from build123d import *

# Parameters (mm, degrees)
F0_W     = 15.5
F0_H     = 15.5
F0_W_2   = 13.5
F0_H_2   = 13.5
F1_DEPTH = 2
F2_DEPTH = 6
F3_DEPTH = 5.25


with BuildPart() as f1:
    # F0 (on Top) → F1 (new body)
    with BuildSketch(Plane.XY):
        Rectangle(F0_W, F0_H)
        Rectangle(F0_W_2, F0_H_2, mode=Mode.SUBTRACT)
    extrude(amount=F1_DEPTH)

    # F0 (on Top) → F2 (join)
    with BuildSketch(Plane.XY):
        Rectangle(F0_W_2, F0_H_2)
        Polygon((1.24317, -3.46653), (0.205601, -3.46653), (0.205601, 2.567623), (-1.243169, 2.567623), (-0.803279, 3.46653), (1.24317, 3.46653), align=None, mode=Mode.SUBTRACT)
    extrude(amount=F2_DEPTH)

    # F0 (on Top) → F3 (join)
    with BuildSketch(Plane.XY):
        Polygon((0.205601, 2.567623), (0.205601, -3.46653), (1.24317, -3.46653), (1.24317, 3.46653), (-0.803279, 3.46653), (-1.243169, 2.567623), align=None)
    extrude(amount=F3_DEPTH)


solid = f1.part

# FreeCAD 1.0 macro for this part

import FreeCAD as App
import Part
import Sketcher
from FreeCAD import Vector


def add_polygon(sketch, points):
    """Adds a closed chain of lines whose ends are joined by coincident constraints."""
    first, n = sketch.GeometryCount, len(points)
    for a, b in zip(points, points[1:] + points[:1]):
        sketch.addGeometry(Part.LineSegment(App.Vector(*a, 0), App.Vector(*b, 0)), False)
    for i in range(n):
        sketch.addConstraint(Sketcher.Constraint("Coincident", first + i, 2, first + (i + 1) % n, 1))

doc = App.newDocument("Part")
params = doc.addObject("Spreadsheet::Sheet", "Params")
for row, (alias, value) in enumerate([
    ("sketch1_width", "15.5 mm"),
    ("sketch1_width2", "13.5 mm"),
    ("pad1_length", "2 mm"),
    ("sketch2_width", "13.5 mm"),
    ("pad2_length", "6 mm"),
    ("pad3_length", "5.25 mm"),
], start=1):
    params.set(f"A{row}", alias)
    params.set(f"B{row}", "=" + value)
    params.setAlias(f"B{row}", alias)

body = doc.addObject("PartDesign::Body", "Body")

# Sketch on XY plane
sketch1 = doc.addObject("Sketcher::SketchObject", "Sketch")
body.addObject(sketch1)
sketch1.AttachmentSupport = (doc.XY_Plane, [""])
sketch1.MapMode = "FlatFace"
add_polygon(sketch1, [(-8, 8), (-8, -8), (8, -8), (8, 8)])  # lines 0-3
add_polygon(sketch1, [(7, -7), (-7, -7), (-7, 7), (7, 7)])  # lines 4-7
sketch1.addConstraint([
    Sketcher.Constraint("Vertical", 0),
    Sketcher.Constraint("Horizontal", 1),
    Sketcher.Constraint("Vertical", 2),
    Sketcher.Constraint("Horizontal", 3),
    Sketcher.Constraint("Horizontal", 4),
    Sketcher.Constraint("Vertical", 5),
    Sketcher.Constraint("Horizontal", 6),
    Sketcher.Constraint("Vertical", 7),
    Sketcher.Constraint("Symmetric", 0, 2, 2, 2, -1, 1),
    Sketcher.Constraint("Symmetric", 4, 2, 6, 2, -1, 1),
    Sketcher.Constraint("Equal", 3, 0),
    Sketcher.Constraint("Equal", 6, 5),
    Sketcher.Constraint("DistanceX", 1, 1, 1, 2, 15.5),
    Sketcher.Constraint("DistanceX", 4, 2, 4, 1, 13.5),
])
sketch1.setExpression("Constraints[20]", "Params.sketch1_width")
sketch1.setExpression("Constraints[21]", "Params.sketch1_width2")
pad1 = doc.addObject("PartDesign::Pad", "Pad")
body.addObject(pad1)
pad1.Profile = sketch1
pad1.setExpression("Length", "Params.pad1_length")

# Sketch on XY plane
sketch2 = doc.addObject("Sketcher::SketchObject", "Sketch001")
body.addObject(sketch2)
sketch2.AttachmentSupport = (doc.XY_Plane, [""])
sketch2.MapMode = "FlatFace"
add_polygon(sketch2, [(-6.8, 6.8), (-6.8, -6.8), (6.8, -6.8), (6.8, 6.8)])  # lines 0-3
add_polygon(sketch2, [(1.2, 3.5), (1.2, -3.5), (0.2, -3.5), (0.2, 2.6), (-1.2, 2.6), (-0.8, 3.5)])  # lines 4-9
sketch2.addConstraint([
    Sketcher.Constraint("Vertical", 0),
    Sketcher.Constraint("Horizontal", 1),
    Sketcher.Constraint("Vertical", 2),
    Sketcher.Constraint("Horizontal", 3),
    Sketcher.Constraint("Vertical", 4),
    Sketcher.Constraint("Horizontal", 5),
    Sketcher.Constraint("Vertical", 6),
    Sketcher.Constraint("Horizontal", 7),
    Sketcher.Constraint("Horizontal", 9),
    Sketcher.Constraint("Symmetric", 0, 2, 2, 2, -1, 1),
    Sketcher.Constraint("Equal", 3, 0),
    Sketcher.Constraint("DistanceX", 1, 1, 1, 2, 13.5),
    Sketcher.Constraint("DistanceX", 5, 2, 5, 1, 1.037569),
    Sketcher.Constraint("DistanceX", 7, 2, 7, 1, 1.44877),
    Sketcher.Constraint("DistanceX", 9, 1, 9, 2, 2.046449),
    Sketcher.Constraint("DistanceY", 4, 2, 4, 1, 6.93306),
    Sketcher.Constraint("DistanceX", -1, 1, 5, 2, 0.205601),
    Sketcher.Constraint("Distance", 8, 1.000768),
    Sketcher.Constraint("DistanceY", 4, 2, -1, 1, 3.46653),
])
sketch2.setExpression("Constraints[21]", "Params.sketch2_width")
pad2 = doc.addObject("PartDesign::Pad", "Pad001")
body.addObject(pad2)
pad2.Profile = sketch2
pad2.setExpression("Length", "Params.pad2_length")

# Sketch on XY plane
sketch3 = doc.addObject("Sketcher::SketchObject", "Sketch002")
body.addObject(sketch3)
sketch3.AttachmentSupport = (doc.XY_Plane, [""])
sketch3.MapMode = "FlatFace"
add_polygon(sketch3, [(0.2, 2.6), (0.2, -3.5), (1.2, -3.5), (1.2, 3.5), (-0.8, 3.5), (-1.2, 2.6)])  # lines 0-5
sketch3.addConstraint([
    Sketcher.Constraint("Vertical", 0),
    Sketcher.Constraint("Horizontal", 1),
    Sketcher.Constraint("Vertical", 2),
    Sketcher.Constraint("Horizontal", 3),
    Sketcher.Constraint("Horizontal", 5),
    Sketcher.Constraint("DistanceX", 1, 1, 1, 2, 1.037569),
    Sketcher.Constraint("DistanceX", 3, 2, 3, 1, 2.046449),
    Sketcher.Constraint("DistanceX", 5, 1, 5, 2, 1.44877),
    Sketcher.Constraint("DistanceY", 2, 1, 2, 2, 6.93306),
    Sketcher.Constraint("DistanceX", -1, 1, 0, 2, 0.205601),
    Sketcher.Constraint("Distance", 4, 1.000768),
    Sketcher.Constraint("DistanceY", 0, 2, -1, 1, 3.46653),
])
pad3 = doc.addObject("PartDesign::Pad", "Pad002")
body.addObject(pad3)
pad3.Profile = sketch3
pad3.setExpression("Length", "Params.pad3_length")

doc.recompute()
